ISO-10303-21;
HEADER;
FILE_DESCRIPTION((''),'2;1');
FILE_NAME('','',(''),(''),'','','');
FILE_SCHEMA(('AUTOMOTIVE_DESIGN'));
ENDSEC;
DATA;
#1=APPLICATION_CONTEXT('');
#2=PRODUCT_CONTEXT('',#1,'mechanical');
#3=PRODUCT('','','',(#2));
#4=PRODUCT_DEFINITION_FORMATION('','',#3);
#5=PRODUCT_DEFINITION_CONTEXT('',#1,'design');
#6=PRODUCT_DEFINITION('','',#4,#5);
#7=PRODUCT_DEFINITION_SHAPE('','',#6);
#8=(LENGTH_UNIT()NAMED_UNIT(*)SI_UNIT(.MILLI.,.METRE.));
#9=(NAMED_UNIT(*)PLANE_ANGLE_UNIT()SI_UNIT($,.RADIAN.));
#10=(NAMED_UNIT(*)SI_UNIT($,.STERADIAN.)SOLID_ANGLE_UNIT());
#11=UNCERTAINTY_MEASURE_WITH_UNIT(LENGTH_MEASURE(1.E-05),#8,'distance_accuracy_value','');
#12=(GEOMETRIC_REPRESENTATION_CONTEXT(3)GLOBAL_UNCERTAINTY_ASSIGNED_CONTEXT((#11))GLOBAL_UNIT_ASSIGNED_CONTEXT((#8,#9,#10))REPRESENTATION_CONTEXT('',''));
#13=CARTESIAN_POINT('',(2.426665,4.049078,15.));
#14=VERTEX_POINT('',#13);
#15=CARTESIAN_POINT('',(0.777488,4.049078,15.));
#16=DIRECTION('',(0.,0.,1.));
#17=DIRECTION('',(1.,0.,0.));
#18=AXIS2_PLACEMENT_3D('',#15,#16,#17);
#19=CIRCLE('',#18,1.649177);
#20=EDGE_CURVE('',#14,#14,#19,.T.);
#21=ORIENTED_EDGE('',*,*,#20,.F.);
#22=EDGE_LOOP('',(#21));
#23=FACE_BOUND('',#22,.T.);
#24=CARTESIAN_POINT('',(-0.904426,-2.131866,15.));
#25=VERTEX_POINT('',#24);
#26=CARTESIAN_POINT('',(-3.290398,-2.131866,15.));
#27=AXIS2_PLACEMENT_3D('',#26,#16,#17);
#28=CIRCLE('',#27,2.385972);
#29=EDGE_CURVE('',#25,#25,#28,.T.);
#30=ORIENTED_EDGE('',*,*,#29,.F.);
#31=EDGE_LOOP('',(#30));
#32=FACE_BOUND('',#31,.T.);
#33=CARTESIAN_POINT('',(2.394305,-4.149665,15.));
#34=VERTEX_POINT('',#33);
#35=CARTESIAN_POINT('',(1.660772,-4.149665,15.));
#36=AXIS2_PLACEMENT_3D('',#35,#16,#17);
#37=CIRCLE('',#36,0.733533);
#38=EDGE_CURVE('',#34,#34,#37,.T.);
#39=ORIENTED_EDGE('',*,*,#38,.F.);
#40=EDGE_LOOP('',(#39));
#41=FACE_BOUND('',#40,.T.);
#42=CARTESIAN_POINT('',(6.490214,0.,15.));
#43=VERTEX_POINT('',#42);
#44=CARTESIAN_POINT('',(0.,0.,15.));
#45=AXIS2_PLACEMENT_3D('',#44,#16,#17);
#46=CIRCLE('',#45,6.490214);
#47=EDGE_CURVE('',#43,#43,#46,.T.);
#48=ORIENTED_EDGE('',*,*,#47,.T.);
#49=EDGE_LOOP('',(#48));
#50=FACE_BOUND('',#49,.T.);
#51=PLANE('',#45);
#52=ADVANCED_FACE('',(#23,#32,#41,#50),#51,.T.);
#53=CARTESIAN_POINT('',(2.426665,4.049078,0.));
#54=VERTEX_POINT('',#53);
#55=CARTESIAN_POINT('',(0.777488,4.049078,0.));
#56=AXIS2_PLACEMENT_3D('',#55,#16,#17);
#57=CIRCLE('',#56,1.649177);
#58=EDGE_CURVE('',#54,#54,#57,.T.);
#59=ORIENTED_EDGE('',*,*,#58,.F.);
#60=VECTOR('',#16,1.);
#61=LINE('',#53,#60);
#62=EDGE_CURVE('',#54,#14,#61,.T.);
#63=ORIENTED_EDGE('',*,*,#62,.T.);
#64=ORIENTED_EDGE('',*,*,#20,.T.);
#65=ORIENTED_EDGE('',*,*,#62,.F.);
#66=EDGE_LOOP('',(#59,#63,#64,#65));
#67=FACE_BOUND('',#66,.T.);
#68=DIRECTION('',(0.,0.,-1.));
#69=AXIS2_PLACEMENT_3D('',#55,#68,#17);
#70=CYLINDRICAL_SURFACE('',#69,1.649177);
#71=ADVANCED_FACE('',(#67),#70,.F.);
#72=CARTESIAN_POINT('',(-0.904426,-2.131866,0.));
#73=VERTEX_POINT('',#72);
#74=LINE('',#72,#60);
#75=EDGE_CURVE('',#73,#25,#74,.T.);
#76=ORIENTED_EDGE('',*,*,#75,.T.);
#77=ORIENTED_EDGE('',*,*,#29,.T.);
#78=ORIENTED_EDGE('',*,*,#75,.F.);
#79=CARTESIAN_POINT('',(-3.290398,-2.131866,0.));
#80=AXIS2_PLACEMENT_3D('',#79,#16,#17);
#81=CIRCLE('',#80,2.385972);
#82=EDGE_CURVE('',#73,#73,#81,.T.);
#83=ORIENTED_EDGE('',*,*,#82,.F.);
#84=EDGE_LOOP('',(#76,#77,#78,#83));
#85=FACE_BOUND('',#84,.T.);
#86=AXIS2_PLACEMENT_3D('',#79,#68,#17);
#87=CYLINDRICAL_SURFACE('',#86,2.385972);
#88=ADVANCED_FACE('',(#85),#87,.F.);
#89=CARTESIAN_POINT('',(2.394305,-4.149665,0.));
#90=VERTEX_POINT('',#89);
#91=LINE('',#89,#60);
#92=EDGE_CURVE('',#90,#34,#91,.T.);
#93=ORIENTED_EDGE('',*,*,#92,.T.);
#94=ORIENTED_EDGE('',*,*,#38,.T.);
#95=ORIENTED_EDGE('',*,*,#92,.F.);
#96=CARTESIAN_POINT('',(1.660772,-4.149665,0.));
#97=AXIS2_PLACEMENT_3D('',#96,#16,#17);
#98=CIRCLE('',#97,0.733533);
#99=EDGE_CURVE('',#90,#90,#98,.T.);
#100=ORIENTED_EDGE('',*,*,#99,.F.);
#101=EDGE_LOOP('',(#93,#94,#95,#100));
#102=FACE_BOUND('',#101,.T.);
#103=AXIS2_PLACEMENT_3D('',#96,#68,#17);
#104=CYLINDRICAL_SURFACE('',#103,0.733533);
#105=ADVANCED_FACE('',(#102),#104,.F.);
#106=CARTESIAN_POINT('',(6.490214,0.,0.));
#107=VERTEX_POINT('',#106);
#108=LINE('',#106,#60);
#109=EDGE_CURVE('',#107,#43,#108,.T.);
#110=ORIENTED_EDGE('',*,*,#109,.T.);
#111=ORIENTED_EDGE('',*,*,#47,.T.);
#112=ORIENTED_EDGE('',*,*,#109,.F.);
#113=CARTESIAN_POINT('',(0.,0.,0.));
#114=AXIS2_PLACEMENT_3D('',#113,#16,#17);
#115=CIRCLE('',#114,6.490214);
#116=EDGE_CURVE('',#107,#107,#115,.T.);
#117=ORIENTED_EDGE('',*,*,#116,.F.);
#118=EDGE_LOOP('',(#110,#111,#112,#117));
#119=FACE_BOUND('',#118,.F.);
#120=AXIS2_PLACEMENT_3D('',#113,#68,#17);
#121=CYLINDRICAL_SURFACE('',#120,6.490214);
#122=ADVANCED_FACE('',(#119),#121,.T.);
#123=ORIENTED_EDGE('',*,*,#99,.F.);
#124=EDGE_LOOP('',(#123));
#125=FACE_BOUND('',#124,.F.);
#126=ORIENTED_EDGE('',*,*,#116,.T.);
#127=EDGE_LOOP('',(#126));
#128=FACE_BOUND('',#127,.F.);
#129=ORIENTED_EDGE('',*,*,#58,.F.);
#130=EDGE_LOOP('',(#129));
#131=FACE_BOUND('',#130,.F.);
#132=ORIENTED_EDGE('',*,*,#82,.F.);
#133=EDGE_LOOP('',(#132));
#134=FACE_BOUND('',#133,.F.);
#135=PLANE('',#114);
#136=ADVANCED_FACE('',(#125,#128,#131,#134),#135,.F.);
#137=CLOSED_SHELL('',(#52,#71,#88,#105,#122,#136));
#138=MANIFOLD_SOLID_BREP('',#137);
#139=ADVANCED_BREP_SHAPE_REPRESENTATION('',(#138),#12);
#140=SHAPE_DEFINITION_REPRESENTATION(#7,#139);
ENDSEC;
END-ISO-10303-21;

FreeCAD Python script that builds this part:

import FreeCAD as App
import Part
import Sketcher
from FreeCAD import Vector

doc = App.newDocument("Part")
params = doc.addObject("Spreadsheet::Sheet", "Params")
for row, (alias, value) in enumerate([
    ("pad1_length", "15 mm"),
], start=1):
    params.set(f"A{row}", alias)
    params.set(f"B{row}", "=" + value)
    params.setAlias(f"B{row}", alias)

body = doc.addObject("PartDesign::Body", "Body")

# Sketch on XY plane
sketch1 = doc.addObject("Sketcher::SketchObject", "Sketch")
body.addObject(sketch1)
sketch1.AttachmentSupport = (doc.XY_Plane, [""])
sketch1.MapMode = "FlatFace"
sketch1.addGeometry([
    Part.Circle(Vector(0, 0, 0), Vector(0, 0, 1), 6.5),
    Part.Circle(Vector(-3.3, -2.1, 0), Vector(0, 0, 1), 2.4),
    Part.Circle(Vector(1.7, -4.1, 0), Vector(0, 0, 1), 0.7),
    Part.Circle(Vector(0.8, 4, 0), Vector(0, 0, 1), 1.6),
], False)
sketch1.addConstraint([
    Sketcher.Constraint("Coincident", 0, 3, -1, 1),
    Sketcher.Constraint("Diameter", 0, 12.980428),
    Sketcher.Constraint("Diameter", 1, 4.771944),
    Sketcher.Constraint("Diameter", 2, 1.467066),
    Sketcher.Constraint("Diameter", 3, 3.298354),
    Sketcher.Constraint("DistanceX", 1, 3, -1, 1, 3.290398),
    Sketcher.Constraint("DistanceY", 2, 3, 1, 3, 2.017799),
    Sketcher.Constraint("DistanceX", -1, 1, 2, 3, 1.660772),
    Sketcher.Constraint("DistanceY", 1, 3, -1, 1, 2.131866),
    Sketcher.Constraint("DistanceX", -1, 1, 3, 3, 0.777488),
    Sketcher.Constraint("DistanceY", -1, 1, 3, 3, 4.049078),
])
pad1 = doc.addObject("PartDesign::Pad", "Pad")
body.addObject(pad1)
pad1.Profile = sketch1
pad1.setExpression("Length", "Params.pad1_length")

doc.recompute()
